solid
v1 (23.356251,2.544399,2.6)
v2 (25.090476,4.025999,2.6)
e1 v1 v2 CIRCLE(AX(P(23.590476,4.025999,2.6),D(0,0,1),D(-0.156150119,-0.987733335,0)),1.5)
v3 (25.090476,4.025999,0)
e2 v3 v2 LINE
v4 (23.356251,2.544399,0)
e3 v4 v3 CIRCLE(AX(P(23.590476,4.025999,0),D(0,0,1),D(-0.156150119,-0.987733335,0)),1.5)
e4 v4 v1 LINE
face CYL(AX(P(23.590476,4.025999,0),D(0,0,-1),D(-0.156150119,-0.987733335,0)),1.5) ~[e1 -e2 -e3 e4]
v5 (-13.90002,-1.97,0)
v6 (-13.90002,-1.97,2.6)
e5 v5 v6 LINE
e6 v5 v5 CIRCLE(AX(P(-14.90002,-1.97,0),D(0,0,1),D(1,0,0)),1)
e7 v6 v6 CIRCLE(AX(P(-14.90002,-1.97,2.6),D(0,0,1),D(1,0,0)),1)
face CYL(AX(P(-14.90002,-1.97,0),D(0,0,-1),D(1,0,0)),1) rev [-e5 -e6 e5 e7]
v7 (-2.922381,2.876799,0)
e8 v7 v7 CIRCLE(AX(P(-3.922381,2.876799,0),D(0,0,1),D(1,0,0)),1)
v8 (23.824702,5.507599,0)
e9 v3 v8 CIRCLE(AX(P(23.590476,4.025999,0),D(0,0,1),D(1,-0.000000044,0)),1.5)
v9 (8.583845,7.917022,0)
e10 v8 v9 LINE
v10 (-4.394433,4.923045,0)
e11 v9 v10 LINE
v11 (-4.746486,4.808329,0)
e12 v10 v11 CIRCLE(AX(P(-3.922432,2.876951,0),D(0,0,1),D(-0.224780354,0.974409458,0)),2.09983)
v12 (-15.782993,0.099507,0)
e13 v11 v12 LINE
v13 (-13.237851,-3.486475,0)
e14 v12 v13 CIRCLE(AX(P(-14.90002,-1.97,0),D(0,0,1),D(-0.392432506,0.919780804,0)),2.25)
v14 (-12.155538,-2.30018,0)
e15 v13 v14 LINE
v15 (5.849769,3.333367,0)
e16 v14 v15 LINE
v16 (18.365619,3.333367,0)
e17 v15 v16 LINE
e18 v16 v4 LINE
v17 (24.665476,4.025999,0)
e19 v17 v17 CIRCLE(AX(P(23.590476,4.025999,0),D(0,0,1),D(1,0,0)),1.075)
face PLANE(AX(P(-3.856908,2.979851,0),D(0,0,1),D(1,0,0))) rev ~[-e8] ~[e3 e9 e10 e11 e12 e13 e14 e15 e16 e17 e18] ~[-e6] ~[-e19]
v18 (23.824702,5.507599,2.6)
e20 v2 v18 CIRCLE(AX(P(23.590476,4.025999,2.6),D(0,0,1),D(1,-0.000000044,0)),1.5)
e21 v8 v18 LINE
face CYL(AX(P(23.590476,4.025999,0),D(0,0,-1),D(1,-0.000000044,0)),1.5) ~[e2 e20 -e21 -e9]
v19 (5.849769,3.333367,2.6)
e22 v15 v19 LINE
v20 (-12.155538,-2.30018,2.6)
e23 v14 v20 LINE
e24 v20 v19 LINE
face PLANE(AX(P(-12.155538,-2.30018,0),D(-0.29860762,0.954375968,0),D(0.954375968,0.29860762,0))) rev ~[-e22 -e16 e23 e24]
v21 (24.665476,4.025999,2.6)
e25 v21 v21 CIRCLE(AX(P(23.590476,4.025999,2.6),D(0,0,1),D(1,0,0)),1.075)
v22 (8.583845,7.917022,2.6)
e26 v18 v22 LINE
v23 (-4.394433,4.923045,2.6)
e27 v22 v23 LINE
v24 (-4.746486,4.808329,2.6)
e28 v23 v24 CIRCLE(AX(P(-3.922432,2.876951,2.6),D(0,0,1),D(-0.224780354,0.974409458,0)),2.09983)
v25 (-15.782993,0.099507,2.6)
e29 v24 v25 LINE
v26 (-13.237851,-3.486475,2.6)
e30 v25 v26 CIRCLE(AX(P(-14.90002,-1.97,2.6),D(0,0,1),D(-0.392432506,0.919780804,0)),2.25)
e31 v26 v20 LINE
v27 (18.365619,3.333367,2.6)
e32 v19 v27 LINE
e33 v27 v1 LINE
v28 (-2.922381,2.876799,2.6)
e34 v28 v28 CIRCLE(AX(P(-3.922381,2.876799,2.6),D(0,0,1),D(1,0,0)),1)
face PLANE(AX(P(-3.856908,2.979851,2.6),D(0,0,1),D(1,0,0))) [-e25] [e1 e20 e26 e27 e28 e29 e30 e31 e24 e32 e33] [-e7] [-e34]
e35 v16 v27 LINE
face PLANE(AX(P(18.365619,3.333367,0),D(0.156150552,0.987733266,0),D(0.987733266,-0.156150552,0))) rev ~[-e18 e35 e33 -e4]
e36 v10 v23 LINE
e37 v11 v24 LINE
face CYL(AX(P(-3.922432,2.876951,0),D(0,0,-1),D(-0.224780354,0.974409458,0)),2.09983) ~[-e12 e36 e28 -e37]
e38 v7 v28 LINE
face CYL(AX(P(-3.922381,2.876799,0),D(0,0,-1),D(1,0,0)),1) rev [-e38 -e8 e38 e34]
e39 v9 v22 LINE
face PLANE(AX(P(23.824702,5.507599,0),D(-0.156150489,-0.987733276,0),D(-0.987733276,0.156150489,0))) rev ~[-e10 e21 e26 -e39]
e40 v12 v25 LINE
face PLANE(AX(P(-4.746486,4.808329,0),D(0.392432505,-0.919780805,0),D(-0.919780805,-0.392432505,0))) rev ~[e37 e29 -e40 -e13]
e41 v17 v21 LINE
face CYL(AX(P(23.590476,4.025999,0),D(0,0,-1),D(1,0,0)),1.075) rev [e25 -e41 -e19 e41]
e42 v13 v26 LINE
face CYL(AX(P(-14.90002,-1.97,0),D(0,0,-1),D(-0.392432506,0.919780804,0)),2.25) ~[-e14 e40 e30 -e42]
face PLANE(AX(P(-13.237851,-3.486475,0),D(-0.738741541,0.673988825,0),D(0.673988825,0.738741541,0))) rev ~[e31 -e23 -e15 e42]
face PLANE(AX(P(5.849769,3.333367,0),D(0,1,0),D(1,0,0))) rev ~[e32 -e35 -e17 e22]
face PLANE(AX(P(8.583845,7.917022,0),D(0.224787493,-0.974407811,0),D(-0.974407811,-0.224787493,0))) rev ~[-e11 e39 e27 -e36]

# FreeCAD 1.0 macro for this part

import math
import FreeCAD as App
import Part
import Sketcher
Q = App.Units.Quantity

doc = App.newDocument("Part")
body = doc.addObject("PartDesign::Body", "Body")

# Sketch on XY plane
sketch1 = body.newObject("Sketcher::SketchObject", "Sketch")
sketch1.AttachmentSupport = (doc.getObject("XY_Plane"), [""])
sketch1.MapMode = "FlatFace"
sketch1.addGeometry(Part.ArcOfCircle(Part.Circle(App.Vector(-3.922432, 2.876951, 0), App.Vector(0, 0, 1), 2.09983), math.radians(102.989963), math.radians(113.106298)), False)
sketch1.addGeometry(Part.LineSegment(App.Vector(-4.746486, 4.808329, 0), App.Vector(-15.782993, 0.099507, 0)), False)
sketch1.addGeometry(Part.ArcOfCircle(Part.Circle(App.Vector(-14.90002, -1.97, 0), App.Vector(0, 0, 1), 2.25), math.radians(113.105942), math.radians(317.624328)), False)
sketch1.addGeometry(Part.LineSegment(App.Vector(-13.237851, -3.486475, 0), App.Vector(-12.155538, -2.30018, 0)), False)
sketch1.addGeometry(Part.LineSegment(App.Vector(-12.155538, -2.30018, 0), App.Vector(5.849769, 3.333367, 0)), False)
sketch1.addGeometry(Part.LineSegment(App.Vector(5.849769, 3.333367, 0), App.Vector(18.365619, 3.333367, 0)), False)
sketch1.addGeometry(Part.LineSegment(App.Vector(18.365619, 3.333367, 0), App.Vector(23.356251, 2.544399, 0)), False)
sketch1.addGeometry(Part.ArcOfCircle(Part.Circle(App.Vector(23.590476, 4.025999, 0), App.Vector(0, 0, 1), 1.5), math.radians(-98.983505), math.radians(0.000006)), False)
sketch1.addGeometry(Part.ArcOfCircle(Part.Circle(App.Vector(23.590476, 4.025999, 0), App.Vector(0, 0, 1), 1.5), math.radians(-0.000003), math.radians(81.01646)), False)
sketch1.addGeometry(Part.LineSegment(App.Vector(23.824702, 5.507599, 0), App.Vector(8.583845, 7.917022, 0)), False)
sketch1.addGeometry(Part.LineSegment(App.Vector(8.583845, 7.917022, 0), App.Vector(-4.394433, 4.923045, 0)), False)
sketch1.addGeometry(Part.Circle(App.Vector(-14.90002, -1.97, 0), App.Vector(0, 0, 1), 1), False)
sketch1.addGeometry(Part.Circle(App.Vector(-3.922381, 2.876799, 0), App.Vector(0, 0, 1), 1), False)
sketch1.addGeometry(Part.Circle(App.Vector(23.590476, 4.025999, 0), App.Vector(0, 0, 1), 1.075), False)
sketch1.addConstraint(Sketcher.Constraint("Coincident", 0, 2, 1, 1))
sketch1.addConstraint(Sketcher.Constraint("Coincident", 1, 2, 2, 1))
sketch1.addConstraint(Sketcher.Constraint("Coincident", 2, 2, 3, 1))
sketch1.addConstraint(Sketcher.Constraint("Coincident", 3, 2, 4, 1))
sketch1.addConstraint(Sketcher.Constraint("Coincident", 4, 2, 5, 1))
sketch1.addConstraint(Sketcher.Constraint("Coincident", 5, 2, 6, 1))
sketch1.addConstraint(Sketcher.Constraint("Coincident", 6, 2, 7, 1))
sketch1.addConstraint(Sketcher.Constraint("Coincident", 7, 2, 8, 1))
sketch1.addConstraint(Sketcher.Constraint("Coincident", 8, 2, 9, 1))
sketch1.addConstraint(Sketcher.Constraint("Coincident", 9, 2, 10, 1))
sketch1.addConstraint(Sketcher.Constraint("Coincident", 10, 2, 0, 1))
sketch1.addConstraint(Sketcher.Constraint("Horizontal", 5))
sketch1.addConstraint(Sketcher.Constraint("Coincident", 8, 3, 7, 3))
sketch1.addConstraint(Sketcher.Constraint("Coincident", 11, 3, 2, 3))
sketch1.addConstraint(Sketcher.Constraint("Coincident", 13, 3, 7, 3))
sketch1.addConstraint(Sketcher.Constraint("Diameter", 11, Q("2 mm")))
sketch1.addConstraint(Sketcher.Constraint("Diameter", 12, Q("2 mm")))
sketch1.addConstraint(Sketcher.Constraint("Radius", 7, Q("1.5 mm")))
sketch1.addConstraint(Sketcher.Constraint("Diameter", 13, Q("2.15 mm")))
sketch1.addConstraint(Sketcher.Constraint("Radius", 2, Q("2.25 mm")))
sketch1.addConstraint(Sketcher.Constraint("DistanceY", 2, 3, -1, 1, Q("1.97 mm")))
sketch1.addConstraint(Sketcher.Constraint("Radius", 0, Q("2.09983 mm")))
sketch1.addConstraint(Sketcher.Constraint("DistanceY", -1, 1, 7, 3, Q("4.025999 mm")))
sketch1.addConstraint(Sketcher.Constraint("DistanceY", -1, 1, 7, 2, Q("4.025999 mm")))
sketch1.addConstraint(Sketcher.Constraint("DistanceX", 12, 3, 5, 2, Q("22.288 mm")))
sketch1.addConstraint(Sketcher.Constraint("DistanceX", 10, 2, 0, 3, Q("0.472001 mm")))
sketch1.addConstraint(Sketcher.Constraint("DistanceX", 5, 1, 5, 2, Q("12.51585 mm")))
sketch1.addConstraint(Sketcher.Constraint("DistanceY", -1, 1, 12, 3, Q("2.876799 mm")))
sketch1.addConstraint(Sketcher.Constraint("DistanceY", -1, 1, 6, 2, Q("2.544399 mm")))
sketch1.addConstraint(Sketcher.Constraint("DistanceX", -1, 1, 8, 2, Q("23.824702 mm")))
sketch1.addConstraint(Sketcher.Constraint("DistanceY", -1, 1, 8, 2, Q("5.507599 mm")))
sketch1.addConstraint(Sketcher.Constraint("DistanceX", 0, 3, 4, 2, Q("9.772201 mm")))
sketch1.addConstraint(Sketcher.Constraint("Distance", 6, Q("5.052611 mm")))
sketch1.addConstraint(Sketcher.Constraint("DistanceY", -1, 1, 0, 3, Q("2.876951 mm")))
sketch1.addConstraint(Sketcher.Constraint("DistanceX", 2, 3, -1, 1, Q("14.90002 mm")))
sketch1.addConstraint(Sketcher.Constraint("DistanceX", 12, 3, -1, 1, Q("3.922381 mm")))
sketch1.addConstraint(Sketcher.Constraint("DistanceY", -1, 1, 0, 2, Q("4.808329 mm")))
sketch1.addConstraint(Sketcher.Constraint("DistanceX", 2, 2, -1, 1, Q("13.237851 mm")))
sketch1.addConstraint(Sketcher.Constraint("DistanceY", 3, 2, -1, 1, Q("2.30018 mm")))
sketch1.addConstraint(Sketcher.Constraint("DistanceX", 1, 2, 0, 3, Q("11.860561 mm")))
sketch1.addConstraint(Sketcher.Constraint("DistanceX", 2, 3, 3, 2, Q("2.744482 mm")))
sketch1.addConstraint(Sketcher.Constraint("DistanceY", 0, 3, 9, 2, Q("5.040071 mm")))
sketch1.addConstraint(Sketcher.Constraint("DistanceX", 0, 2, 9, 2, Q("13.330331 mm")))
pad1 = body.newObject("PartDesign::Pad", "Pad")
pad1.Profile = sketch1
pad1.Length = 2.6

doc.recompute()
